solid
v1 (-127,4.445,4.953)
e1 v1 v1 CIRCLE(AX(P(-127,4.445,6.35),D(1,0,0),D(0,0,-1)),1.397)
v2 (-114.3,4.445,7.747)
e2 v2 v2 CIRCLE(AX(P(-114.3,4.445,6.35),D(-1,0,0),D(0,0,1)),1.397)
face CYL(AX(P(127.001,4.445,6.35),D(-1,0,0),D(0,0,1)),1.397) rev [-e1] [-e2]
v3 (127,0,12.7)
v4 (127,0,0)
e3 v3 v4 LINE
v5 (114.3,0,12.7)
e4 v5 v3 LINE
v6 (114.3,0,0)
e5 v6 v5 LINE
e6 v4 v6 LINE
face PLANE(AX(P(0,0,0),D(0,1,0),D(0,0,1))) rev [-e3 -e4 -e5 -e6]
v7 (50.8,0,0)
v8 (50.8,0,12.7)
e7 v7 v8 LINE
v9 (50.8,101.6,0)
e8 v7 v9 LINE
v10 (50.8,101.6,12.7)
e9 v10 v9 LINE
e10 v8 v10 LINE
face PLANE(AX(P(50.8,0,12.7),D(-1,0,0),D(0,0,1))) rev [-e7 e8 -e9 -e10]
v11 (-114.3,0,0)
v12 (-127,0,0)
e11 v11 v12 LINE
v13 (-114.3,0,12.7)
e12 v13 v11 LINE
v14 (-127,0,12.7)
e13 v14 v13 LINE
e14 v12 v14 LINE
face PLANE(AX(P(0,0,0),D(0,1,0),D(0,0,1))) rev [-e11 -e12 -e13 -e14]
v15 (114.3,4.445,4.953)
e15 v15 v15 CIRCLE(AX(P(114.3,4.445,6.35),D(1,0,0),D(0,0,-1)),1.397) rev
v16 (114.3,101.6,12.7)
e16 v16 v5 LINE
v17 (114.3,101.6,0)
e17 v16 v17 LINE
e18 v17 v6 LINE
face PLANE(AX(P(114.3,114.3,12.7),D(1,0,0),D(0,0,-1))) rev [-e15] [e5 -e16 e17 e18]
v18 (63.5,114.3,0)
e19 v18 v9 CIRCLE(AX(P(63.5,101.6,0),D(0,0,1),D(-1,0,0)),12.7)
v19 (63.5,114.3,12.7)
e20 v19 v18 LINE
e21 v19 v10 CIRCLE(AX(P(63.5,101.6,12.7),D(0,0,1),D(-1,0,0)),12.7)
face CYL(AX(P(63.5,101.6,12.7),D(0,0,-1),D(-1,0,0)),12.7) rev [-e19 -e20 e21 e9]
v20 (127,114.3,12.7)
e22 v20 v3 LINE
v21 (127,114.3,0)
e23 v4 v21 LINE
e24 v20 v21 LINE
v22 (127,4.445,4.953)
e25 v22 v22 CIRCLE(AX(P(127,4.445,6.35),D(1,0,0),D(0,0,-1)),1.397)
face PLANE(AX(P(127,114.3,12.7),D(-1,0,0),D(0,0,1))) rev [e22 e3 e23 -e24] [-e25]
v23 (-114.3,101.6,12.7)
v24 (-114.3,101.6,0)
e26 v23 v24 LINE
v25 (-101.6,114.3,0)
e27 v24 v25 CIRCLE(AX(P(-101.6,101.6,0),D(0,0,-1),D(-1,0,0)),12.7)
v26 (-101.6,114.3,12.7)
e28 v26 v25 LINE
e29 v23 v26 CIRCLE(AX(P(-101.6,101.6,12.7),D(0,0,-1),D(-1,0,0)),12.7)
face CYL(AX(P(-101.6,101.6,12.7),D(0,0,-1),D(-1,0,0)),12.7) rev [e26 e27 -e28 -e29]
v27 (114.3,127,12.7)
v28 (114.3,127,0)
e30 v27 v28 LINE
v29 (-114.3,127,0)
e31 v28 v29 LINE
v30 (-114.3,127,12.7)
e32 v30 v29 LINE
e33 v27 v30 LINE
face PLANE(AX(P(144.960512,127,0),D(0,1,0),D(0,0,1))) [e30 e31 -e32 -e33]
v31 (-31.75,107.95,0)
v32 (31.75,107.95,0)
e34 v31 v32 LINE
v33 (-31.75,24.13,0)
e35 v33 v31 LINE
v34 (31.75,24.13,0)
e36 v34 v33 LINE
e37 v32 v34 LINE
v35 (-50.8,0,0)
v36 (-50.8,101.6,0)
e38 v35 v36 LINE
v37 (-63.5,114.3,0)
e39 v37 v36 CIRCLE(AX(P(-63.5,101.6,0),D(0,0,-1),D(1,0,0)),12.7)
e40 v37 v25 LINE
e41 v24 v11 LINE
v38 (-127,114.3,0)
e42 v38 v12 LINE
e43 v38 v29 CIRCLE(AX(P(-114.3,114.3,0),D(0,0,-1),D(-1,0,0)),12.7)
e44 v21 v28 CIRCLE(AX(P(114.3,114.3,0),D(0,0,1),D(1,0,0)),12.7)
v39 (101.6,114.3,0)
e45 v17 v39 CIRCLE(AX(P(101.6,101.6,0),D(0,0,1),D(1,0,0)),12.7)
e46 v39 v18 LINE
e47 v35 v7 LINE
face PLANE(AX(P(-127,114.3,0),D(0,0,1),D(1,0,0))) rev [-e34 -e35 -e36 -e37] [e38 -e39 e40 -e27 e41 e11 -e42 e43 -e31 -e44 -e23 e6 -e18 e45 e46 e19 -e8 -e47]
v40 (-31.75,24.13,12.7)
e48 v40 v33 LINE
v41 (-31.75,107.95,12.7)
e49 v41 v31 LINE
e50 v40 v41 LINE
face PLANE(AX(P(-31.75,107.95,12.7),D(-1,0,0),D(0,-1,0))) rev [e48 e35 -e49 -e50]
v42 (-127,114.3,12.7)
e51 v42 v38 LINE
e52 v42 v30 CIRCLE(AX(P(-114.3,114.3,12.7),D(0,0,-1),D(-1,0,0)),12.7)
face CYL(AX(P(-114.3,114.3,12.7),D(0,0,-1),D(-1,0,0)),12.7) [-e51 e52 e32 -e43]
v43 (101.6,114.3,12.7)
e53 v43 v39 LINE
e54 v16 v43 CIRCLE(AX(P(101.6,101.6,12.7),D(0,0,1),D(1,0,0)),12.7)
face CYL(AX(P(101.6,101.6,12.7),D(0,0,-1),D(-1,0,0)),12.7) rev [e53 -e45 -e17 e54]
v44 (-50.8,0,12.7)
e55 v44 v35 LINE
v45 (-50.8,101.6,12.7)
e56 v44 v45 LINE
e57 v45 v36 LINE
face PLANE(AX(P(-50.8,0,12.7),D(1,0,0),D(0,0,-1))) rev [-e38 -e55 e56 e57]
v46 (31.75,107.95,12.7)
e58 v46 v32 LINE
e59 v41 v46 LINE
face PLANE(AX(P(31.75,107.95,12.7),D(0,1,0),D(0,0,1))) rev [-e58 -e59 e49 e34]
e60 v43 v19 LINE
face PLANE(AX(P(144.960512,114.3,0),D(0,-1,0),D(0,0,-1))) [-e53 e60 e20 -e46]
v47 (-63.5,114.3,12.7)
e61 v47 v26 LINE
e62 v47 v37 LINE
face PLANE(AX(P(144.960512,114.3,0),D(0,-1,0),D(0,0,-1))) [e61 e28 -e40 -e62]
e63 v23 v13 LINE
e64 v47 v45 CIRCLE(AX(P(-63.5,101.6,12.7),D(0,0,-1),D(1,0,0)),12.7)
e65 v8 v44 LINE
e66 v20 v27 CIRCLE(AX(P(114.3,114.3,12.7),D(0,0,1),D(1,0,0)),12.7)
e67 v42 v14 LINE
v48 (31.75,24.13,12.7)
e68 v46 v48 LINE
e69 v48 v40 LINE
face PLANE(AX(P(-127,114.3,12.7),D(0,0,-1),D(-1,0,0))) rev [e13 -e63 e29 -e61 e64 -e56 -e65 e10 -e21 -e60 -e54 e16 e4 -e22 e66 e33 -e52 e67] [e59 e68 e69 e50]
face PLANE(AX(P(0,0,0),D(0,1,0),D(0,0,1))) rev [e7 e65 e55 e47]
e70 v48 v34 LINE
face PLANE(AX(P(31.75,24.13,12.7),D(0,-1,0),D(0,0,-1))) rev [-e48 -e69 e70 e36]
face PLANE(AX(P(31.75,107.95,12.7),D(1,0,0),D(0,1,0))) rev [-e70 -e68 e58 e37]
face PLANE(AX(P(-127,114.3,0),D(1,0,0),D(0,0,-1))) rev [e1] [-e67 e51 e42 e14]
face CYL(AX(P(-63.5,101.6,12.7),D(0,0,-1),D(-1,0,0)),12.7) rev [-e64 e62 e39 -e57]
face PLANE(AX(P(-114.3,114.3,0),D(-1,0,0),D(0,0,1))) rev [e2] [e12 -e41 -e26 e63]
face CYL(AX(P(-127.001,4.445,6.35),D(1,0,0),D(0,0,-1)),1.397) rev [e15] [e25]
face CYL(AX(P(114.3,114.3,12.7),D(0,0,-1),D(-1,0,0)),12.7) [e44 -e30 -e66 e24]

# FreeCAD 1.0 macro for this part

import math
import FreeCAD as App
import Part
import Sketcher
Q = App.Units.Quantity

doc = App.newDocument("Part")
body = doc.addObject("PartDesign::Body", "Body")

# Sketch on XZ plane
sketch1 = body.newObject("Sketcher::SketchObject", "Sketch")
sketch1.AttachmentSupport = (doc.getObject("XZ_Plane"), [""])
sketch1.MapMode = "FlatFace"
sketch1.addGeometry(Part.LineSegment(App.Vector(-127, 0, 0), App.Vector(-127, 13, 0)), False)
sketch1.addGeometry(Part.LineSegment(App.Vector(-127, 13, 0), App.Vector(-114, 13, 0)), False)
sketch1.addGeometry(Part.LineSegment(App.Vector(-114, 13, 0), App.Vector(-114, 0, 0)), False)
sketch1.addGeometry(Part.LineSegment(App.Vector(-114, 0, 0), App.Vector(-127, 0, 0)), False)
sketch1.addConstraint(Sketcher.Constraint("Coincident", 0, 2, 1, 1))
sketch1.addConstraint(Sketcher.Constraint("Coincident", 1, 2, 2, 1))
sketch1.addConstraint(Sketcher.Constraint("Coincident", 2, 2, 3, 1))
sketch1.addConstraint(Sketcher.Constraint("Coincident", 3, 2, 0, 1))
sketch1.addConstraint(Sketcher.Constraint("Vertical", 0))
sketch1.addConstraint(Sketcher.Constraint("Horizontal", 1))
sketch1.addConstraint(Sketcher.Constraint("Vertical", 2))
sketch1.addConstraint(Sketcher.Constraint("Horizontal", 3))
sketch1.addConstraint(Sketcher.Constraint("PointOnObject", 2, 2, -1))
sketch1.addConstraint(Sketcher.Constraint("Equal", 3, 0))
sketch1.addConstraint(Sketcher.Constraint("DistanceX", 1, 1, 1, 2, Q("0.5 in")))
sketch1.addConstraint(Sketcher.Constraint("DistanceX", 0, 2, -1, 1, Q("5 in")))
pad1 = body.newObject("PartDesign::Pad", "Pad")
pad1.Profile = sketch1
pad1.Length = Q("4.5 in")
pad1.Reversed = True
body2 = doc.addObject("PartDesign::Body", "Body001")

# Sketch on XZ plane
sketch2 = body2.newObject("Sketcher::SketchObject", "Sketch001")
sketch2.AttachmentSupport = (doc.getObject("XZ_Plane001"), [""])
sketch2.MapMode = "FlatFace"
sketch2.addGeometry(Part.LineSegment(App.Vector(114, 0, 0), App.Vector(114, 13, 0)), False)
sketch2.addGeometry(Part.LineSegment(App.Vector(114, 13, 0), App.Vector(127, 13, 0)), False)
sketch2.addGeometry(Part.LineSegment(App.Vector(127, 13, 0), App.Vector(127, 0, 0)), False)
sketch2.addGeometry(Part.LineSegment(App.Vector(127, 0, 0), App.Vector(114, 0, 0)), False)
sketch2.addConstraint(Sketcher.Constraint("Coincident", 0, 2, 1, 1))
sketch2.addConstraint(Sketcher.Constraint("Coincident", 1, 2, 2, 1))
sketch2.addConstraint(Sketcher.Constraint("Coincident", 2, 2, 3, 1))
sketch2.addConstraint(Sketcher.Constraint("Coincident", 3, 2, 0, 1))
sketch2.addConstraint(Sketcher.Constraint("Vertical", 0))
sketch2.addConstraint(Sketcher.Constraint("Horizontal", 1))
sketch2.addConstraint(Sketcher.Constraint("Vertical", 2))
sketch2.addConstraint(Sketcher.Constraint("Horizontal", 3))
sketch2.addConstraint(Sketcher.Constraint("PointOnObject", 2, 2, -1))
sketch2.addConstraint(Sketcher.Constraint("Equal", 3, 0))
sketch2.addConstraint(Sketcher.Constraint("DistanceX", 1, 1, 1, 2, Q("0.5 in")))
sketch2.addConstraint(Sketcher.Constraint("DistanceX", -1, 1, 1, 2, Q("5 in")))
pad2 = body2.newObject("PartDesign::Pad", "Pad001")
pad2.Profile = sketch2
pad2.Length = Q("4.5 in")
pad2.Reversed = True
body.AllowCompound = True
doc.recompute()

boolean = body.newObject("PartDesign::Boolean", "Boolean")
boolean.Type = "Fuse"
boolean.addObjects([body2])

# Sketch on YZ plane
sketch3 = body.newObject("Sketcher::SketchObject", "Sketch002")
sketch3.AttachmentSupport = (doc.getObject("YZ_Plane"), [""])
sketch3.MapMode = "FlatFace"
sketch3.AttachmentOffset = App.Placement(App.Vector(0, 0, -5 * 25.4), App.Rotation())
sketch3.addGeometry(Part.LineSegment(App.Vector(127, 0, 0), App.Vector(114, 0, 0)), False)
sketch3.addGeometry(Part.LineSegment(App.Vector(114, 0, 0), App.Vector(114, 13, 0)), False)
sketch3.addGeometry(Part.LineSegment(App.Vector(114, 13, 0), App.Vector(127, 13, 0)), False)
sketch3.addGeometry(Part.LineSegment(App.Vector(127, 13, 0), App.Vector(127, 0, 0)), False)
sketch3.addConstraint(Sketcher.Constraint("Coincident", 0, 2, 1, 1))
sketch3.addConstraint(Sketcher.Constraint("Coincident", 1, 2, 2, 1))
sketch3.addConstraint(Sketcher.Constraint("Coincident", 2, 2, 3, 1))
sketch3.addConstraint(Sketcher.Constraint("Coincident", 3, 2, 0, 1))
sketch3.addConstraint(Sketcher.Constraint("Horizontal", 0))
sketch3.addConstraint(Sketcher.Constraint("Vertical", 1))
sketch3.addConstraint(Sketcher.Constraint("Horizontal", 2))
sketch3.addConstraint(Sketcher.Constraint("Vertical", 3))
sketch3.addConstraint(Sketcher.Constraint("PointOnObject", 0, 2, -1))
sketch3.addConstraint(Sketcher.Constraint("Equal", 2, 1))
sketch3.addConstraint(Sketcher.Constraint("DistanceX", 0, 2, 0, 1, Q("0.5 in")))
sketch3.addConstraint(Sketcher.Constraint("DistanceX", -1, 1, 2, 2, Q("5 in")))
pad3 = body.newObject("PartDesign::Pad", "Pad002")
pad3.Profile = sketch3
pad3.Length = Q("10 in")

# Sketch on XZ plane
sketch4 = body.newObject("Sketcher::SketchObject", "Sketch003")
sketch4.AttachmentSupport = (doc.getObject("XZ_Plane"), [""])
sketch4.MapMode = "FlatFace"
sketch4.AttachmentOffset = App.Placement(App.Vector(0, 0, -4.5 * 25.4), App.Rotation())
sketch4.addGeometry(Part.LineSegment(App.Vector(-51, 13, 0), App.Vector(-51, 0, 0)), False)
sketch4.addGeometry(Part.LineSegment(App.Vector(-51, 0, 0), App.Vector(51, 0, 0)), False)
sketch4.addGeometry(Part.LineSegment(App.Vector(51, 0, 0), App.Vector(51, 13, 0)), False)
sketch4.addGeometry(Part.LineSegment(App.Vector(51, 13, 0), App.Vector(-51, 13, 0)), False)
sketch4.addConstraint(Sketcher.Constraint("Coincident", 0, 2, 1, 1))
sketch4.addConstraint(Sketcher.Constraint("Coincident", 1, 2, 2, 1))
sketch4.addConstraint(Sketcher.Constraint("Coincident", 2, 2, 3, 1))
sketch4.addConstraint(Sketcher.Constraint("Coincident", 3, 2, 0, 1))
sketch4.addConstraint(Sketcher.Constraint("Vertical", 0))
sketch4.addConstraint(Sketcher.Constraint("Horizontal", 1))
sketch4.addConstraint(Sketcher.Constraint("Vertical", 2))
sketch4.addConstraint(Sketcher.Constraint("Horizontal", 3))
sketch4.addConstraint(Sketcher.Constraint("Symmetric", 0, 2, 1, 2, -1, 1))
sketch4.addConstraint(Sketcher.Constraint("DistanceX", 1, 1, 1, 2, Q("4 in")))
sketch4.addConstraint(Sketcher.Constraint("DistanceY", 0, 2, 0, 1, Q("0.5 in")))
pad4 = body.newObject("PartDesign::Pad", "Pad003")
pad4.Profile = sketch4
pad4.Length = Q("4.5 in")

# Sketch on YZ plane
sketch5 = body.newObject("Sketcher::SketchObject", "Sketch004")
sketch5.AttachmentSupport = (doc.getObject("YZ_Plane"), [""])
sketch5.MapMode = "FlatFace"
sketch5.AttachmentOffset = App.Placement(App.Vector(0, 0, 5 * 25.4), App.Rotation())
sketch5.addGeometry(Part.Circle(App.Vector(4.4, 6.3, 0), App.Vector(0, 0, 1), 1.4), False)
sketch5.addConstraint(Sketcher.Constraint("Diameter", 0, Q("0.11 in")))
sketch5.addConstraint(Sketcher.Constraint("DistanceY", -1, 1, 0, 3, Q("0.25 in")))
sketch5.addConstraint(Sketcher.Constraint("DistanceX", -1, 1, 0, 3, Q("0.175 in")))
pocket1 = body.newObject("PartDesign::Pocket", "Pocket")
pocket1.Profile = sketch5
pocket1.Length = Q("0.5 in")
doc.recompute()

mirrored = body.newObject("PartDesign::Mirrored", "Mirrored")
mirrored.Originals = [pocket1]
mirrored.MirrorPlane = (doc.getObject("YZ_Plane"), [""])
body.Tip = mirrored

# Sketch on XY plane
sketch6 = body.newObject("Sketcher::SketchObject", "Sketch005")
sketch6.AttachmentSupport = (doc.getObject("XY_Plane"), [""])
sketch6.MapMode = "FlatFace"
sketch6.addGeometry(Part.LineSegment(App.Vector(114, 114, 0), App.Vector(114, 102, 0)), False)
sketch6.addGeometry(Part.ArcOfCircle(Part.Circle(App.Vector(102, 102, 0), App.Vector(0, 0, 1), 13), math.radians(0), math.radians(90)), False)
sketch6.addGeometry(Part.LineSegment(App.Vector(102, 114, 0), App.Vector(114, 114, 0)), False)
sketch6.addGeometry(Part.LineSegment(App.Vector(51, 114, 0), App.Vector(64, 114, 0)), False)
sketch6.addGeometry(Part.ArcOfCircle(Part.Circle(App.Vector(64, 102, 0), App.Vector(0, 0, 1), 13), math.radians(90), math.radians(180)), False)
sketch6.addGeometry(Part.LineSegment(App.Vector(51, 102, 0), App.Vector(51, 114, 0)), False)
sketch6.addConstraint(Sketcher.Constraint("Tangent", 0, 2, 1, 1))
sketch6.addConstraint(Sketcher.Constraint("Tangent", 1, 2, 2, 1))
sketch6.addConstraint(Sketcher.Constraint("Coincident", 2, 2, 0, 1))
sketch6.addConstraint(Sketcher.Constraint("Tangent", 3, 2, 4, 1))
sketch6.addConstraint(Sketcher.Constraint("Tangent", 4, 2, 5, 1))
sketch6.addConstraint(Sketcher.Constraint("Coincident", 5, 2, 3, 1))
sketch6.addConstraint(Sketcher.Constraint("Vertical", 0))
sketch6.addConstraint(Sketcher.Constraint("Horizontal", 2))
sketch6.addConstraint(Sketcher.Constraint("Horizontal", 3))
sketch6.addConstraint(Sketcher.Constraint("Vertical", 5))
sketch6.addConstraint(Sketcher.Constraint("Equal", 1, 4))
sketch6.addConstraint(Sketcher.Constraint("Horizontal", 1, 3, 4, 3))
sketch6.addConstraint(Sketcher.Constraint("Radius", 1, Q("0.5 in")))
sketch6.addConstraint(Sketcher.Constraint("DistanceX", -1, 1, 1, 3, Q("4 in")))
sketch6.addConstraint(Sketcher.Constraint("DistanceY", -1, 1, 1, 3, Q("4 in")))
sketch6.addConstraint(Sketcher.Constraint("DistanceX", -1, 1, 4, 2, Q("2 in")))
pad5 = body.newObject("PartDesign::Pad", "Pad004")
pad5.Profile = sketch6
pad5.Length = Q("0.5 in")
doc.recompute()

mirrored2 = body.newObject("PartDesign::Mirrored", "Mirrored001")
mirrored2.Originals = [pad5]
mirrored2.MirrorPlane = (doc.getObject("YZ_Plane"), [""])
body.Tip = mirrored2

# Sketch on XY plane
sketch7 = body.newObject("Sketcher::SketchObject", "Sketch006")
sketch7.AttachmentSupport = (doc.getObject("XY_Plane"), [""])
sketch7.MapMode = "FlatFace"
sketch7.addGeometry(Part.LineSegment(App.Vector(127, 127, 0), App.Vector(127, 114, 0)), False)
sketch7.addGeometry(Part.ArcOfCircle(Part.Circle(App.Vector(114, 114, 0), App.Vector(0, 0, 1), 13), math.radians(0), math.radians(90)), False)
sketch7.addGeometry(Part.LineSegment(App.Vector(114, 127, 0), App.Vector(127, 127, 0)), False)
sketch7.addConstraint(Sketcher.Constraint("Tangent", 0, 2, 1, 1))
sketch7.addConstraint(Sketcher.Constraint("Tangent", 1, 2, 2, 1))
sketch7.addConstraint(Sketcher.Constraint("Coincident", 2, 2, 0, 1))
sketch7.addConstraint(Sketcher.Constraint("Vertical", 0))
sketch7.addConstraint(Sketcher.Constraint("Horizontal", 2))
sketch7.addConstraint(Sketcher.Constraint("Radius", 1, Q("0.5 in")))
sketch7.addConstraint(Sketcher.Constraint("DistanceX", -1, 1, 0, 2, Q("5 in")))
sketch7.addConstraint(Sketcher.Constraint("DistanceY", -1, 1, 1, 2, Q("5 in")))
pocket2 = body.newObject("PartDesign::Pocket", "Pocket001")
pocket2.Profile = sketch7
pocket2.Length = Q("0.5 in")
pocket2.Reversed = True
doc.recompute()

mirrored3 = body.newObject("PartDesign::Mirrored", "Mirrored002")
mirrored3.Originals = [pocket2]
mirrored3.MirrorPlane = (doc.getObject("YZ_Plane"), [""])
body.Tip = mirrored3

# Sketch on XY plane
sketch8 = body.newObject("Sketcher::SketchObject", "Sketch007")
sketch8.AttachmentSupport = (doc.getObject("XY_Plane"), [""])
sketch8.MapMode = "FlatFace"
sketch8.addGeometry(Part.LineSegment(App.Vector(32, 108, 0), App.Vector(32, 24, 0)), False)
sketch8.addGeometry(Part.LineSegment(App.Vector(32, 24, 0), App.Vector(-32, 24, 0)), False)
sketch8.addGeometry(Part.LineSegment(App.Vector(-32, 24, 0), App.Vector(-32, 108, 0)), False)
sketch8.addGeometry(Part.LineSegment(App.Vector(-32, 108, 0), App.Vector(32, 108, 0)), False)
sketch8.addConstraint(Sketcher.Constraint("Coincident", 0, 2, 1, 1))
sketch8.addConstraint(Sketcher.Constraint("Coincident", 1, 2, 2, 1))
sketch8.addConstraint(Sketcher.Constraint("Coincident", 2, 2, 3, 1))
sketch8.addConstraint(Sketcher.Constraint("Coincident", 3, 2, 0, 1))
sketch8.addConstraint(Sketcher.Constraint("Vertical", 0))
sketch8.addConstraint(Sketcher.Constraint("Horizontal", 1))
sketch8.addConstraint(Sketcher.Constraint("Vertical", 2))
sketch8.addConstraint(Sketcher.Constraint("Horizontal", 3))
sketch8.addConstraint(Sketcher.Constraint("DistanceX", 1, 2, 1, 1, Q("2.5 in")))
sketch8.addConstraint(Sketcher.Constraint("DistanceY", 0, 2, 0, 1, Q("3.3 in")))
sketch8.addConstraint(Sketcher.Constraint("DistanceX", -1, 1, 0, 2, Q("1.25 in")))
sketch8.addConstraint(Sketcher.Constraint("DistanceY", -1, 1, 0, 2, Q("0.95 in")))
pocket3 = body.newObject("PartDesign::Pocket", "Pocket002")
pocket3.Profile = sketch8
pocket3.Length = Q("0.5 in")
pocket3.Reversed = True

doc.recompute()
